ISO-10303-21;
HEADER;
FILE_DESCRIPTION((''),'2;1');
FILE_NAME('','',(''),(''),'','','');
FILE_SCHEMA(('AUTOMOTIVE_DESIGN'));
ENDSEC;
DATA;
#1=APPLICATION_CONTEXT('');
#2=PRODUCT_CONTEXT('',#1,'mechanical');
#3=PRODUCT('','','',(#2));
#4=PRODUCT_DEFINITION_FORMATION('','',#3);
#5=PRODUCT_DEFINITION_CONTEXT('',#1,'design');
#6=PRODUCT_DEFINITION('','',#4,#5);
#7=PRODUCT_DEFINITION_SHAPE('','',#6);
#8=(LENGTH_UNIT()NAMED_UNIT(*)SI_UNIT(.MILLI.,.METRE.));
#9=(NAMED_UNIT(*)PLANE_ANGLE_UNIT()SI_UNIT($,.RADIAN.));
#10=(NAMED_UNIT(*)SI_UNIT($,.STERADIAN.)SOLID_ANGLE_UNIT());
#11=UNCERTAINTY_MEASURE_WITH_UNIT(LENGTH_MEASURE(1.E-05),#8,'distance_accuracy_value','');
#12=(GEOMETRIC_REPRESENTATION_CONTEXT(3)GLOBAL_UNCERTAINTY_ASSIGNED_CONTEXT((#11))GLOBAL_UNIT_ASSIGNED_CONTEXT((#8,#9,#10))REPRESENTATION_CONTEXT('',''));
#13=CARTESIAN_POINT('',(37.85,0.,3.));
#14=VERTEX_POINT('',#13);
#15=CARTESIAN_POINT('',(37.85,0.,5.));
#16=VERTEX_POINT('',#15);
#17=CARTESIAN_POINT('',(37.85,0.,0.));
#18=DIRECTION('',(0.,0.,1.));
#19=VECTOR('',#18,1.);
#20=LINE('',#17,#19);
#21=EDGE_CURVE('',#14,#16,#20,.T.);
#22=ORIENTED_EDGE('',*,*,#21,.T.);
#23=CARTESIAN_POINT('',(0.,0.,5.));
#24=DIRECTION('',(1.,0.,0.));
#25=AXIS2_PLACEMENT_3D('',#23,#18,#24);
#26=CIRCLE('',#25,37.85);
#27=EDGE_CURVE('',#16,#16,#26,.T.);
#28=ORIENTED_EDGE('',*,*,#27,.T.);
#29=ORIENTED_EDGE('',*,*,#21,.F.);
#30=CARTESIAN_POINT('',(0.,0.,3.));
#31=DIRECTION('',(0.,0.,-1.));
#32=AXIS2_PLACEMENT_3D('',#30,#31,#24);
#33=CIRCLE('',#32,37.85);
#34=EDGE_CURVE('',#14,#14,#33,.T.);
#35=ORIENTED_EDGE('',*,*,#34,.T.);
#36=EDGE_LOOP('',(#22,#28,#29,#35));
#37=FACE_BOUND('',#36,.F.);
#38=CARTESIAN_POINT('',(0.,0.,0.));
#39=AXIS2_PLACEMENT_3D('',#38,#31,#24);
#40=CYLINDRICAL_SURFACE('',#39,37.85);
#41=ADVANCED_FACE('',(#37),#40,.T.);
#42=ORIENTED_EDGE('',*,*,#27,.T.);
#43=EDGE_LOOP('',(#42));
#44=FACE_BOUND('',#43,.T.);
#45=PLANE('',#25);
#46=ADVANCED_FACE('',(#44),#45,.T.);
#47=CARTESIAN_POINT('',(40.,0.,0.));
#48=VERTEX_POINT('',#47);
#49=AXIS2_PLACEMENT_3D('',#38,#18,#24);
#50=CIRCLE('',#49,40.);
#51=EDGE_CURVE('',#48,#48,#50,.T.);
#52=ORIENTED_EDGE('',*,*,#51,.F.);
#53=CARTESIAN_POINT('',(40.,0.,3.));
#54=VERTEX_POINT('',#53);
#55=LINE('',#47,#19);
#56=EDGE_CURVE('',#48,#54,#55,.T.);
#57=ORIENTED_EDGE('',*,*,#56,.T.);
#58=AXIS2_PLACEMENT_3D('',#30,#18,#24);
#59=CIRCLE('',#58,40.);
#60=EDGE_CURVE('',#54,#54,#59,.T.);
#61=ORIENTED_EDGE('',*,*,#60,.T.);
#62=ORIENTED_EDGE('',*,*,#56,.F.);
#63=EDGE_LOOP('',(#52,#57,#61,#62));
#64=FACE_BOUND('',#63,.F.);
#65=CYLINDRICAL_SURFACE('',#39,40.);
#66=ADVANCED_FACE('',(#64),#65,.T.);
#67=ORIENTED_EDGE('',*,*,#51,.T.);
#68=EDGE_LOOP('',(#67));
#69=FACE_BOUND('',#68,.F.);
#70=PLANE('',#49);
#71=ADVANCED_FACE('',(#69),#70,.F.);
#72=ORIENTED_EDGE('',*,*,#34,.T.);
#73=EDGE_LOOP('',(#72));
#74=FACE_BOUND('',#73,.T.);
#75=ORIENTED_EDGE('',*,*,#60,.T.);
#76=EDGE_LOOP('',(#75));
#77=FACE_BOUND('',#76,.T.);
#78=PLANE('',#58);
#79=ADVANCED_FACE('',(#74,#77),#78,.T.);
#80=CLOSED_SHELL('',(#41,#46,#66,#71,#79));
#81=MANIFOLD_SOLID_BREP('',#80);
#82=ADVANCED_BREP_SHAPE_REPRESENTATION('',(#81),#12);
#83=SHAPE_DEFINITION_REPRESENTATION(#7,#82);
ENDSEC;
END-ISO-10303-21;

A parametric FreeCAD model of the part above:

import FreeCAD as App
import Part
import Sketcher

V = App.Vector
Q = App.Units.Quantity

doc = App.newDocument("Part")
params = doc.addObject("Spreadsheet::Sheet", "Params")
for row, (alias, value) in enumerate([
    ("sketch1_diameter", "80 mm"),
    ("pad1_length", "3 mm"),
    ("sketch2_diameter", "75.7 mm"),
    ("pad2_length", "5 mm"),
], start=1):
    params.set(f"A{row}", alias)
    params.set(f"B{row}", "=" + value)
    params.setAlias(f"B{row}", alias)

body = doc.addObject("PartDesign::Body", "Body")

sketch1 = doc.addObject("Sketcher::SketchObject", "Sketch")
body.addObject(sketch1)
sketch1.AttachmentSupport = (doc.XY_Plane, [""])
sketch1.MapMode = "FlatFace"
sketch1.addGeometry(Part.Circle(V(0, 0, 0), V(0, 0, 1), 40), False)
sketch1.addConstraint([
    Sketcher.Constraint("Coincident", 0, 3, -1, 1),
    Sketcher.Constraint("Diameter", 0, Q("80 mm")),
])
sketch1.setExpression("Constraints[1]", "Params.sketch1_diameter")
pad1 = doc.addObject("PartDesign::Pad", "Pad")
body.addObject(pad1)
pad1.Profile = sketch1
pad1.setExpression("Length", "Params.pad1_length")

sketch2 = doc.addObject("Sketcher::SketchObject", "Sketch001")
body.addObject(sketch2)
sketch2.AttachmentSupport = (doc.XY_Plane, [""])
sketch2.MapMode = "FlatFace"
sketch2.addGeometry(Part.Circle(V(0, 0, 0), V(0, 0, 1), 38), False)
sketch2.addConstraint([
    Sketcher.Constraint("Coincident", 0, 3, -1, 1),
    Sketcher.Constraint("Diameter", 0, Q("75.7 mm")),
])
sketch2.setExpression("Constraints[1]", "Params.sketch2_diameter")
pad2 = doc.addObject("PartDesign::Pad", "Pad001")
body.addObject(pad2)
pad2.Profile = sketch2
pad2.setExpression("Length", "Params.pad2_length")

doc.recompute()
